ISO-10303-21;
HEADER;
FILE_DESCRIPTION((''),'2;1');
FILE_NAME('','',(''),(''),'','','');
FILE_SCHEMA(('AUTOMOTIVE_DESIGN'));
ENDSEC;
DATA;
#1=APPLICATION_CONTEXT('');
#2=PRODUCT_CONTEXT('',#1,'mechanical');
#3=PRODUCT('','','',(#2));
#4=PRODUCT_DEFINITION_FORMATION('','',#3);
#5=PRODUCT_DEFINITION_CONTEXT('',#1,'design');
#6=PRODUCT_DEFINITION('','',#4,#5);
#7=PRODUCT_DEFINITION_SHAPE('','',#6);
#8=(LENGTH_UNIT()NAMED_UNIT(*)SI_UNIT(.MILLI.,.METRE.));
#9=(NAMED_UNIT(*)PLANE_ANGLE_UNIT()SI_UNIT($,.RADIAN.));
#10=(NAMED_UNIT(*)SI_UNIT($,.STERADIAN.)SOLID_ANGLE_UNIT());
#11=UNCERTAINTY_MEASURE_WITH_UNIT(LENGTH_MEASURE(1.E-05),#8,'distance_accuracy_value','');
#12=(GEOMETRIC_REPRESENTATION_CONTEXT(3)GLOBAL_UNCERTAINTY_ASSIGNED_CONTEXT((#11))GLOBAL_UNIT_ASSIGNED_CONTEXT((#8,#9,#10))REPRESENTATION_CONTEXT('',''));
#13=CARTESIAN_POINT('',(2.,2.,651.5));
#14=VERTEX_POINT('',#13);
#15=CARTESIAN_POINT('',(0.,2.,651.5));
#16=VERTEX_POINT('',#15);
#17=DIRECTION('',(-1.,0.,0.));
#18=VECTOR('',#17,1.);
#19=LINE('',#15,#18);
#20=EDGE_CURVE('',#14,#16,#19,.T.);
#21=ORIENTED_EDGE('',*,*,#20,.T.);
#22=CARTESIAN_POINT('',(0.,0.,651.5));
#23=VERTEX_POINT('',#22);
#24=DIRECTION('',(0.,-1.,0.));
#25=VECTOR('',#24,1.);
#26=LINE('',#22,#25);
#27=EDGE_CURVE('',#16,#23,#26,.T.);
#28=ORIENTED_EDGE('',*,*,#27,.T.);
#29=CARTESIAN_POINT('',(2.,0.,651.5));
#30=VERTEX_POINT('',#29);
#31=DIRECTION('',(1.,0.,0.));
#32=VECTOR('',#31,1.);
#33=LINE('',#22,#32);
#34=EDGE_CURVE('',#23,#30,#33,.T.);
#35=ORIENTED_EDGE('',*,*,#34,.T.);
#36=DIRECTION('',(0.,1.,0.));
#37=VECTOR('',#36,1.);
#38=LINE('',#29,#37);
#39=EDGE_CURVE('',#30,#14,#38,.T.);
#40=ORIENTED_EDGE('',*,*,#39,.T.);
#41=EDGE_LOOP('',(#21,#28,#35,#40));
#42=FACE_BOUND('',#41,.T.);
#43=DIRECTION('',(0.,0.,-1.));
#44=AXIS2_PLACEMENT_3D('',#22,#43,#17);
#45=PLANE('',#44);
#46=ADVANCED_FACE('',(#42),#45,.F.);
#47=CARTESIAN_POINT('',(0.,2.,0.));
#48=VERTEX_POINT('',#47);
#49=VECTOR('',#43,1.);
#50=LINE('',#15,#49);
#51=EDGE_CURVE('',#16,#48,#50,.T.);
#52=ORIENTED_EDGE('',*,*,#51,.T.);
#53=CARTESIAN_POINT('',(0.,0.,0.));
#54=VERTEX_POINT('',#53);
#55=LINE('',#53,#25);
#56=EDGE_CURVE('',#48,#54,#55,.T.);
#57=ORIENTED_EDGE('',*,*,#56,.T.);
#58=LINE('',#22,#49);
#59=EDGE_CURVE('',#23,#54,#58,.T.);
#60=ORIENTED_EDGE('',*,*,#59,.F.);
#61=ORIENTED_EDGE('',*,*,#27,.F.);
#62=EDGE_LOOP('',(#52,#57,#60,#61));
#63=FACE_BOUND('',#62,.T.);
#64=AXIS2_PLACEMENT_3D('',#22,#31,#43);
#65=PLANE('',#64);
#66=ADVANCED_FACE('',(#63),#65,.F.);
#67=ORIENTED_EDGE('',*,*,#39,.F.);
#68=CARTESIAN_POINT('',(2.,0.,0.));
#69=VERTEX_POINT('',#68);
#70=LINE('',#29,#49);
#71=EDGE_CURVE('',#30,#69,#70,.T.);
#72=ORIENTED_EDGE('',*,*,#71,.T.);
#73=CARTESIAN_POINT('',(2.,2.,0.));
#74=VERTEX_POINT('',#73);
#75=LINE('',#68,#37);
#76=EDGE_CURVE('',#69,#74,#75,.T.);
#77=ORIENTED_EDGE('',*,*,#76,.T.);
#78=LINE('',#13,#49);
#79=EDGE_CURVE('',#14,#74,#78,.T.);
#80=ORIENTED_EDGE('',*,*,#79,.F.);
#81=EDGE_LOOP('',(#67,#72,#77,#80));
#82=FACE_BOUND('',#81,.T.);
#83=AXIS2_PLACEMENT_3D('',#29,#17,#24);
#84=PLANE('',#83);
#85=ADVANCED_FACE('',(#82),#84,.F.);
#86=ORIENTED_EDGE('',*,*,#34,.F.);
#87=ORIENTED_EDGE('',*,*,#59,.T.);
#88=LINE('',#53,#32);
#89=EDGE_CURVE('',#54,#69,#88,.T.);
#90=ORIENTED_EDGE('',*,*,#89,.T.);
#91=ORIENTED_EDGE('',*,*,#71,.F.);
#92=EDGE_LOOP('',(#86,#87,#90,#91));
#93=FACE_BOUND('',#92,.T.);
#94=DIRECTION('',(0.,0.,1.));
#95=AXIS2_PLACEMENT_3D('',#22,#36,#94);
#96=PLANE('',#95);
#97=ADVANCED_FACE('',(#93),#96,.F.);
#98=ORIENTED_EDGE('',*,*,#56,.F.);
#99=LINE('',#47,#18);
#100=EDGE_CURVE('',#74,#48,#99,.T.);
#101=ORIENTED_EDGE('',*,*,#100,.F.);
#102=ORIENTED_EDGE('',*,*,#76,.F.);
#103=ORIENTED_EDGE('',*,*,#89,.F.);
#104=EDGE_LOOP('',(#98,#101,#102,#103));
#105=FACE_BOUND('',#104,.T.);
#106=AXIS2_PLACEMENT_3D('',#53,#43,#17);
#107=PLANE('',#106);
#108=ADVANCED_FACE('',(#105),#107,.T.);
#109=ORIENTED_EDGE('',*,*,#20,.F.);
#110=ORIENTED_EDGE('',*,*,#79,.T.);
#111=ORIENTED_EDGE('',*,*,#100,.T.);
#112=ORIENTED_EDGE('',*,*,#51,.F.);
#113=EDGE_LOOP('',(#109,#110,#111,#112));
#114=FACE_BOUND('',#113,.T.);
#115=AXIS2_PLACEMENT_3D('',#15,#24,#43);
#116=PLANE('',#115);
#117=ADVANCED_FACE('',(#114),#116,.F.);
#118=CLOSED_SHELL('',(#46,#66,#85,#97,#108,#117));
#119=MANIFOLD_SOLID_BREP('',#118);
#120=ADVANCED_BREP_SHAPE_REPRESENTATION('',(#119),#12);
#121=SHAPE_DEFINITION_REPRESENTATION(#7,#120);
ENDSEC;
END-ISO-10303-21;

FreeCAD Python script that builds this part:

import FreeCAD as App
import Part
import Sketcher
from FreeCAD import Vector


def add_polygon(sketch, points):
    """Adds a closed chain of lines whose ends are joined by coincident constraints."""
    first, n = sketch.GeometryCount, len(points)
    for a, b in zip(points, points[1:] + points[:1]):
        sketch.addGeometry(Part.LineSegment(App.Vector(*a, 0), App.Vector(*b, 0)), False)
    for i in range(n):
        sketch.addConstraint(Sketcher.Constraint("Coincident", first + i, 2, first + (i + 1) % n, 1))

doc = App.newDocument("Part")
params = doc.addObject("Spreadsheet::Sheet", "Params")
for row, (alias, value) in enumerate([
    ("sketch1_width", "2 mm"),
    ("pad1_length", "651.5 mm"),
], start=1):
    params.set(f"A{row}", alias)
    params.set(f"B{row}", "=" + value)
    params.setAlias(f"B{row}", alias)

body = doc.addObject("PartDesign::Body", "Body")

# Sketch on XY plane
sketch1 = body.newObject("Sketcher::SketchObject", "Sketch")
sketch1.AttachmentSupport = (doc.getObject("XY_Plane"), [""])
sketch1.MapMode = "FlatFace"
add_polygon(sketch1, [(0, 2), (0, 0), (2, 0), (2, 2)])  # lines 0-3
sketch1.addConstraint(Sketcher.Constraint("Vertical", 0))
sketch1.addConstraint(Sketcher.Constraint("Horizontal", 1))
sketch1.addConstraint(Sketcher.Constraint("Vertical", 2))
sketch1.addConstraint(Sketcher.Constraint("Horizontal", 3))
sketch1.addConstraint(Sketcher.Constraint("Coincident", 0, 2, -1, 1))
sketch1.addConstraint(Sketcher.Constraint("Equal", 3, 0))
sketch1.addConstraint(Sketcher.Constraint("DistanceX", 1, 1, 1, 2, 2.0))
sketch1.setExpression("Constraints[10]", "Params.sketch1_width")
pad1 = body.newObject("PartDesign::Pad", "Pad")
pad1.Profile = sketch1
pad1.setExpression("Length", "Params.pad1_length")

doc.recompute()
